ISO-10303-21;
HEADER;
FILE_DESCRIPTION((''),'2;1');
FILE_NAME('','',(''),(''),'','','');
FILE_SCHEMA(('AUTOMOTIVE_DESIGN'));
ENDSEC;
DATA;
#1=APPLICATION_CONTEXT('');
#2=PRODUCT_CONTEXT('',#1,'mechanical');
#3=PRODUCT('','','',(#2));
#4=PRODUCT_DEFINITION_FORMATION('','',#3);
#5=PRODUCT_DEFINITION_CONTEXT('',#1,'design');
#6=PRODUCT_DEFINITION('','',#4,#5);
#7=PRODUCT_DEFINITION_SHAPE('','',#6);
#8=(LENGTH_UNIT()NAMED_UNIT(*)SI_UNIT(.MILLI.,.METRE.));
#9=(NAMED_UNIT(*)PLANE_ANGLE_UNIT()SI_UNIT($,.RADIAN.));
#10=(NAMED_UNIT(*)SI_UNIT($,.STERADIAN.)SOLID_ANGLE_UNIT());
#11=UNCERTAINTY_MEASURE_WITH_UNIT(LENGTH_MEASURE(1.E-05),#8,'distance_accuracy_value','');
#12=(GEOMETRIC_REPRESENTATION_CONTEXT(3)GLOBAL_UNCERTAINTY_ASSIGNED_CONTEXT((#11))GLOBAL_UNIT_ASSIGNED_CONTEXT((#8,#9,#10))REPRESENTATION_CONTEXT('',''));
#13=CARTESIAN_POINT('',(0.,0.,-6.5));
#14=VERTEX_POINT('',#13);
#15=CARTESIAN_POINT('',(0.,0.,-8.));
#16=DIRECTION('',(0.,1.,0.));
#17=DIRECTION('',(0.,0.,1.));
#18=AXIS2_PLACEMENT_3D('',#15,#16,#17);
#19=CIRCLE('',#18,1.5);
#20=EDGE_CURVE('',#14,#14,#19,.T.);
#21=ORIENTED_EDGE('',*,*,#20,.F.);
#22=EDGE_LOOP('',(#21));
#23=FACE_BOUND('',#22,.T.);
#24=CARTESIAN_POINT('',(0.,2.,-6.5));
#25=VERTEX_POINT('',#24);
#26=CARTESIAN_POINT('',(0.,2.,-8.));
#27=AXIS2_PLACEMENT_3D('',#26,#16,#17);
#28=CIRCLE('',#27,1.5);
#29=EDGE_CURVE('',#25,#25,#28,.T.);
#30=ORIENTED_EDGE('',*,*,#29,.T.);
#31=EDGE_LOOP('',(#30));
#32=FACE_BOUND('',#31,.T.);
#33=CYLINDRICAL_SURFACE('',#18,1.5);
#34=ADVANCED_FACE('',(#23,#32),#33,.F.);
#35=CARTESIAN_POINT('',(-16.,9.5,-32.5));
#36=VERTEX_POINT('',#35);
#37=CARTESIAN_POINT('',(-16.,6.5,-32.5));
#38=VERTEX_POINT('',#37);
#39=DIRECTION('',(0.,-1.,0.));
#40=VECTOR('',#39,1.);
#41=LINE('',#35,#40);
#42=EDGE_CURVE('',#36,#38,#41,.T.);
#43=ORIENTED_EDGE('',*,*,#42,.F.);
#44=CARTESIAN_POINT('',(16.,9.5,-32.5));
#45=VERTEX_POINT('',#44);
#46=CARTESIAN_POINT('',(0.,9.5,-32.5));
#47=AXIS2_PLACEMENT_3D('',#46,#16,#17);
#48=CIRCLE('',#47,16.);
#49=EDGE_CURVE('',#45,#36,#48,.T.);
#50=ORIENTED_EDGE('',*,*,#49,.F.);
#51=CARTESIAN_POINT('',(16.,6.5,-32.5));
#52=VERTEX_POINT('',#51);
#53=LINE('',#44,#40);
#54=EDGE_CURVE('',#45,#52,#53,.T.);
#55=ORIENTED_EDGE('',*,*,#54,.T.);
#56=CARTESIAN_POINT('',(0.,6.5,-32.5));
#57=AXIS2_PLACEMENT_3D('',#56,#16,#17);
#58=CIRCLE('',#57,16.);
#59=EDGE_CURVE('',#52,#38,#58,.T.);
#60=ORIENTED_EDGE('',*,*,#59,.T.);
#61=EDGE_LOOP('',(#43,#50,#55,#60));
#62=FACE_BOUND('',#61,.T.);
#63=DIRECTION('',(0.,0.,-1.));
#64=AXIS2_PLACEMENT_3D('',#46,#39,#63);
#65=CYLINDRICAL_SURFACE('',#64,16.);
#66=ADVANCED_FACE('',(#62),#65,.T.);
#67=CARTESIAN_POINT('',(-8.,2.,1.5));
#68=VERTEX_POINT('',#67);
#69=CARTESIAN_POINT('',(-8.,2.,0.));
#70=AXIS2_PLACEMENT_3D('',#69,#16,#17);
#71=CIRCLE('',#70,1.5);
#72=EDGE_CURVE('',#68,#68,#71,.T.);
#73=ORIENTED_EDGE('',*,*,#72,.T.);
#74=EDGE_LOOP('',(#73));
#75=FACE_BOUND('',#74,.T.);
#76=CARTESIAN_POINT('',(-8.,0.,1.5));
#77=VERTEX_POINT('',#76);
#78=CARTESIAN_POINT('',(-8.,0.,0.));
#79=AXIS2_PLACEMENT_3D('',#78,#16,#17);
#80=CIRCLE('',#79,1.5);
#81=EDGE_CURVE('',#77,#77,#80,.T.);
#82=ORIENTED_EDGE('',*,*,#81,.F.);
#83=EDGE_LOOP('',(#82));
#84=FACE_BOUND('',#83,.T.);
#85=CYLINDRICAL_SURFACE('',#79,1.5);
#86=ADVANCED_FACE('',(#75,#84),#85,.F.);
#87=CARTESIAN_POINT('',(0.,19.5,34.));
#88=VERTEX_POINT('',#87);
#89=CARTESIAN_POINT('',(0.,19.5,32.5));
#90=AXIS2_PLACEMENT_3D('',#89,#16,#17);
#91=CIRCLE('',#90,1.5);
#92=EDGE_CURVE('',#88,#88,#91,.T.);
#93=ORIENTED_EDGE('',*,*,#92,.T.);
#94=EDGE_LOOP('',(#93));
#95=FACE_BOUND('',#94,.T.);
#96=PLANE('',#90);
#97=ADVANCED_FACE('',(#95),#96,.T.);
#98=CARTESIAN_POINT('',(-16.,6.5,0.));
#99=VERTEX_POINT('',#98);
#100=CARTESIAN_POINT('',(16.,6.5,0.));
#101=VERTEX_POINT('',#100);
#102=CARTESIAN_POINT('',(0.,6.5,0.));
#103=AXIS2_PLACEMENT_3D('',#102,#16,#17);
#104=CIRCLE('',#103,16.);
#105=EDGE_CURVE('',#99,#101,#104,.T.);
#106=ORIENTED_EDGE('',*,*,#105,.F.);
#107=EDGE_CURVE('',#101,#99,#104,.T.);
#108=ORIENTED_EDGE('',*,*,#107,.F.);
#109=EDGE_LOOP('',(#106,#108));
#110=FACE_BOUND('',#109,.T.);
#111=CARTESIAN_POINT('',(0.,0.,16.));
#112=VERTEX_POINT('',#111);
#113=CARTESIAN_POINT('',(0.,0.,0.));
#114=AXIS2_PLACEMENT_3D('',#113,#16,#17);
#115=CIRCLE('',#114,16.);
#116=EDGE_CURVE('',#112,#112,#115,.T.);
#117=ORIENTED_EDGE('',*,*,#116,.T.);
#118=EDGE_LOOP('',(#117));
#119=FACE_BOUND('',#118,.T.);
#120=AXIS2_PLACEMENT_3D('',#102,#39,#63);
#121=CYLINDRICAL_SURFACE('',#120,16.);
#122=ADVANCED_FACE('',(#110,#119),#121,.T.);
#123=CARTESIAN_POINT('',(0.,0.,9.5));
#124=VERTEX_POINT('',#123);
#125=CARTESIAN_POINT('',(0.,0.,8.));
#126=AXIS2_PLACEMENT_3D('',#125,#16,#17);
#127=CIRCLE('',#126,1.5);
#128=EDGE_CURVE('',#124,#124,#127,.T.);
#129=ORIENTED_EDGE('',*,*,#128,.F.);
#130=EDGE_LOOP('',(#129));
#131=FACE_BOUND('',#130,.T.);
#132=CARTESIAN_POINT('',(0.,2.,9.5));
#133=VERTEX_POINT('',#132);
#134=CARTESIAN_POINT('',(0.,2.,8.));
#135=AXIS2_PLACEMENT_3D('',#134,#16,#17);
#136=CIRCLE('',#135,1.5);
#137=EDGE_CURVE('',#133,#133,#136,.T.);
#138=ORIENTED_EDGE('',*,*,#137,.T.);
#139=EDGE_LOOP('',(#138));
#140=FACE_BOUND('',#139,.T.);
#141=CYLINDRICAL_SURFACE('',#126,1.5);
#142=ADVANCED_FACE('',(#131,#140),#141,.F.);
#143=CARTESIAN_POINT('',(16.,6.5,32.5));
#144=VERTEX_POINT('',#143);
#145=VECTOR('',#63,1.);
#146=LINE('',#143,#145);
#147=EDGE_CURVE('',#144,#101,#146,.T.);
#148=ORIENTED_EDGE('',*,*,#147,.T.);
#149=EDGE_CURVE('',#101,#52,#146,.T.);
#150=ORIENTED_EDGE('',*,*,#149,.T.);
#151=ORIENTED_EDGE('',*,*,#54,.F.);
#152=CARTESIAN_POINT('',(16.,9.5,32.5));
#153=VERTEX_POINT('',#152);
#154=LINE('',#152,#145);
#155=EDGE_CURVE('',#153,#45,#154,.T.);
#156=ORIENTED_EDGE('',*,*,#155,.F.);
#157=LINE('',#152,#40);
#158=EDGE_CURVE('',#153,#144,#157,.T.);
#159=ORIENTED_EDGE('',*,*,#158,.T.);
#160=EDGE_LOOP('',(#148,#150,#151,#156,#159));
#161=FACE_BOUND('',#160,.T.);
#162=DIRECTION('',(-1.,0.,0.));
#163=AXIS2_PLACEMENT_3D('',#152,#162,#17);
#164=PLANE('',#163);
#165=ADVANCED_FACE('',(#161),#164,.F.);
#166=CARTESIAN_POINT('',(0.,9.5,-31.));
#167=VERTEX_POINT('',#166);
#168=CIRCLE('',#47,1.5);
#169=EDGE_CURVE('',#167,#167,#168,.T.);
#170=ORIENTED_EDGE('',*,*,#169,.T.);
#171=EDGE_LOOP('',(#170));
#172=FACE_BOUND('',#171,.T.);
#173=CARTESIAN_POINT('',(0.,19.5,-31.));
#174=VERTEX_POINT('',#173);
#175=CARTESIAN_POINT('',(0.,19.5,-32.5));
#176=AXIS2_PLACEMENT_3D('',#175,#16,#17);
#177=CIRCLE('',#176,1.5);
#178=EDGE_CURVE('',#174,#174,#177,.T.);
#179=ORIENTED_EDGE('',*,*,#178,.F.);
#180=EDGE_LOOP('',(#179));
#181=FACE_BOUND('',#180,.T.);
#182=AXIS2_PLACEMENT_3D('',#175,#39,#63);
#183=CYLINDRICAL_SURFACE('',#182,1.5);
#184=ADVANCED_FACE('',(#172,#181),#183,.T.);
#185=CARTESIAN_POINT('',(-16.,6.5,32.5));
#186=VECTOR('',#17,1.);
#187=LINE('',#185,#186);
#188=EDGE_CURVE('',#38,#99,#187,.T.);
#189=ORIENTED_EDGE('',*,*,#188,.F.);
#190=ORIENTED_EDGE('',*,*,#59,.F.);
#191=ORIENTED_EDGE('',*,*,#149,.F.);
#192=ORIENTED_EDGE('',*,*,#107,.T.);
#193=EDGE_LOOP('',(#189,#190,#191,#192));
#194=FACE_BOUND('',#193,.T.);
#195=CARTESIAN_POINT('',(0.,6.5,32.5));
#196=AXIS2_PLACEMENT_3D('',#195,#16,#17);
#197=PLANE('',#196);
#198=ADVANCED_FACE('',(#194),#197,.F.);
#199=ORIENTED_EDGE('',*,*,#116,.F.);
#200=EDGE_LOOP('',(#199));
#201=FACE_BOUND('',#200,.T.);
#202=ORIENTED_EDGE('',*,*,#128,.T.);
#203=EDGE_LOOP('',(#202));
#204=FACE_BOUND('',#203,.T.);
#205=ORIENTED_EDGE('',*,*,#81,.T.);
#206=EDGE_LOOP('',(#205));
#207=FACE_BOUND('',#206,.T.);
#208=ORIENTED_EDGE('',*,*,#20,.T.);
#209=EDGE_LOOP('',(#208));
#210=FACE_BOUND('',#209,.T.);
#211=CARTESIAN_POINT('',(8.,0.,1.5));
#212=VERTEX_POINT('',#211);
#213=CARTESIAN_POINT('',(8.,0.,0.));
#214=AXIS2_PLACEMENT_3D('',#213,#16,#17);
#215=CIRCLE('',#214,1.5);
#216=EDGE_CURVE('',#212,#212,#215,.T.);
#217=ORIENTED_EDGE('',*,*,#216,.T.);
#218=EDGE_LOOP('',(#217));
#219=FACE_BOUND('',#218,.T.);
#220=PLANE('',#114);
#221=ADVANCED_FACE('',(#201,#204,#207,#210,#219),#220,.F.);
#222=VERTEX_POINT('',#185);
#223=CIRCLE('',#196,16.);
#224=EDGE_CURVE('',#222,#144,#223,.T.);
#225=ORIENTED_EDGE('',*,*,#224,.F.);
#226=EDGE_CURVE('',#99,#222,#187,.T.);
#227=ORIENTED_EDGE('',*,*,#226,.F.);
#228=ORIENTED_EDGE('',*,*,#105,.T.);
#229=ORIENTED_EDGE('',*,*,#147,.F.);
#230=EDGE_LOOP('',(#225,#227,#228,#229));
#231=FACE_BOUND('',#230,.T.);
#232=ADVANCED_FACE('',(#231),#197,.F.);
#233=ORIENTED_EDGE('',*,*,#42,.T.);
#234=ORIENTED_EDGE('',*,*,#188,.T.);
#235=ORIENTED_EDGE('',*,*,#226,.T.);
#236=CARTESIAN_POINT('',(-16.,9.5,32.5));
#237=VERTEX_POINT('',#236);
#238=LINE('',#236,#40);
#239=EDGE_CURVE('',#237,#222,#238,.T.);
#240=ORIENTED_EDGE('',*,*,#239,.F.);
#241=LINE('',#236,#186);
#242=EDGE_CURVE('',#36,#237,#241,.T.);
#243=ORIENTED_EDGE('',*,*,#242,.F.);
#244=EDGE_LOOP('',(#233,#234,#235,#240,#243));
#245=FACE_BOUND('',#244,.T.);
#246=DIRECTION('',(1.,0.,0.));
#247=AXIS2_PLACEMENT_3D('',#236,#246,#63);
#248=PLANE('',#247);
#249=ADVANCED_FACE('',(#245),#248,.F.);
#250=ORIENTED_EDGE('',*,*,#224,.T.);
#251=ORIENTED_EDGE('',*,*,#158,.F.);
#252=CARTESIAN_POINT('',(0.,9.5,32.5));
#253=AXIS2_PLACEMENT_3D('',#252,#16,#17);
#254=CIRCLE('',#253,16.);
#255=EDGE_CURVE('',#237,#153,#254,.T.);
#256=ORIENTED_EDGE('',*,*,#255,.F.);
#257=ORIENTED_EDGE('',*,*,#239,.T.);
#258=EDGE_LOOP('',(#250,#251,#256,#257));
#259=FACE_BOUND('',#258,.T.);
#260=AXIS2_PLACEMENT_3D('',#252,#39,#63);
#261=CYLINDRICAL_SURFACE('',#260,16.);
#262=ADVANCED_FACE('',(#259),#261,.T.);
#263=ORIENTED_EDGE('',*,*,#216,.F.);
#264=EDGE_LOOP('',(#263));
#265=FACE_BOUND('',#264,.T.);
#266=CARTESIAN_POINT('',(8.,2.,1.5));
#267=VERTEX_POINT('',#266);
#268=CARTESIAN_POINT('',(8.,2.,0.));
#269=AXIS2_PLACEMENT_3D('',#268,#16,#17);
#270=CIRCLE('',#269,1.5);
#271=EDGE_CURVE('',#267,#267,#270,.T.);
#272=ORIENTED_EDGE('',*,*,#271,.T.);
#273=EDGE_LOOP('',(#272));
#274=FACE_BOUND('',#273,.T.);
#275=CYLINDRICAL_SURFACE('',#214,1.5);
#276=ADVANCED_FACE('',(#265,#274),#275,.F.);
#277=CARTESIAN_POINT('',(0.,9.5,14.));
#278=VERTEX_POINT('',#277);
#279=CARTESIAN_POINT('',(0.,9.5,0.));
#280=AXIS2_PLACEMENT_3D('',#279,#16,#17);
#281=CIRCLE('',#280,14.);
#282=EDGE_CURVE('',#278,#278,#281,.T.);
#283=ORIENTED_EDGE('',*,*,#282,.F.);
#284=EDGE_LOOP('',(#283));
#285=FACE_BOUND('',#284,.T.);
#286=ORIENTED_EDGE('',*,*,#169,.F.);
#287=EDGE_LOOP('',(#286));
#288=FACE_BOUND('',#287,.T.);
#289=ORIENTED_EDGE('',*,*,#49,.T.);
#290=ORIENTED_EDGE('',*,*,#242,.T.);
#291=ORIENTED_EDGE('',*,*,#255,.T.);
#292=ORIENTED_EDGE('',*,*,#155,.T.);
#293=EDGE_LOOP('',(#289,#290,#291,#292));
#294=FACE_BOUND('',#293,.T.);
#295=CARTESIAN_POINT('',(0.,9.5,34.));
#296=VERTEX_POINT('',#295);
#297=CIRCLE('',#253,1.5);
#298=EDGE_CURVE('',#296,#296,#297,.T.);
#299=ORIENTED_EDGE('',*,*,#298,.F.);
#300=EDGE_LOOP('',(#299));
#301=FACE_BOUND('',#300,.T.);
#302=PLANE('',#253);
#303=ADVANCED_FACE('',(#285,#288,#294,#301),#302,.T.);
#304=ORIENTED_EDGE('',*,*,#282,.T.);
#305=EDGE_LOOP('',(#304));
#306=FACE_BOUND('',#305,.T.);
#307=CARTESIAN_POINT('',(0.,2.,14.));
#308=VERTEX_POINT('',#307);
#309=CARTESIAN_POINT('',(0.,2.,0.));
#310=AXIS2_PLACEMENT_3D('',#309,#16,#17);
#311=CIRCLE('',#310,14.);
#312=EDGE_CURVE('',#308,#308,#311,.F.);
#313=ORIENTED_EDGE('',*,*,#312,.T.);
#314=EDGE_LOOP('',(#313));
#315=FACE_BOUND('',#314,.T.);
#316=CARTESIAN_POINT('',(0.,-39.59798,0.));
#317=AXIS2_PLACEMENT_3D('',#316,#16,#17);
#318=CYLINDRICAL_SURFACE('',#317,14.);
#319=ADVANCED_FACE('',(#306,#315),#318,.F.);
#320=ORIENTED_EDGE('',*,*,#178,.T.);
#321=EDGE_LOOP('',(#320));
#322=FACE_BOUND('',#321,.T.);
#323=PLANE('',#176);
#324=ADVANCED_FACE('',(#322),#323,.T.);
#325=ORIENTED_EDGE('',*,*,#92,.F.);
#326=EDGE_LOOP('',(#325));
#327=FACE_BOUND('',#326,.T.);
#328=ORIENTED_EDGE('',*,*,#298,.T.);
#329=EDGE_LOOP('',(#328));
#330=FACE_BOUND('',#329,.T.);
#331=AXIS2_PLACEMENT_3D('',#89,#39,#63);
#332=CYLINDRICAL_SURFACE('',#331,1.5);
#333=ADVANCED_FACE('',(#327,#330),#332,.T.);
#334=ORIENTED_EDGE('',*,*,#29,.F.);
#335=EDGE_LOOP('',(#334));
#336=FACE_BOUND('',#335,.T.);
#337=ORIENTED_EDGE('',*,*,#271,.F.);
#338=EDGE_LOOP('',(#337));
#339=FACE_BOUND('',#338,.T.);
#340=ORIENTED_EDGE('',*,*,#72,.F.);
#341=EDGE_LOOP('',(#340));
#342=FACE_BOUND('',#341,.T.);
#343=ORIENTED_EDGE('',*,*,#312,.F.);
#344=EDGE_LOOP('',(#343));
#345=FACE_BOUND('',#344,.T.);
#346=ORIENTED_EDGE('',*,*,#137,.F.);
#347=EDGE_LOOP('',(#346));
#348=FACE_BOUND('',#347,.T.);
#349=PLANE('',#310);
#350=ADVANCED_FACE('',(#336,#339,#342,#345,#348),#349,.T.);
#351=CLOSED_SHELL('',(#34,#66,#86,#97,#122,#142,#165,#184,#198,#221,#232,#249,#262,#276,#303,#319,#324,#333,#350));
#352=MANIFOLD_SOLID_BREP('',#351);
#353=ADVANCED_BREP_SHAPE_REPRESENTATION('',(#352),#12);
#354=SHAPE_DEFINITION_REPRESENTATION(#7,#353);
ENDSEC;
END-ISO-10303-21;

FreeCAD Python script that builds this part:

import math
import FreeCAD as App
import Part
import Sketcher

V = App.Vector

doc = App.newDocument("Part")
body = doc.addObject("PartDesign::Body", "Body")

# Sketch on XZ plane
sketch1 = doc.addObject("Sketcher::SketchObject", "Sketch")
body.addObject(sketch1)
sketch1.AttachmentSupport = (doc.XZ_Plane, [""])
sketch1.MapMode = "FlatFace"
sketch1.addGeometry(Part.Circle(V(0, 0, 0), V(0, 0, 1), 16), False)
sketch1.addConstraint(Sketcher.Constraint("Coincident", 0, 3, -1, 1))
sketch1.addConstraint(Sketcher.Constraint("Diameter", 0, 32.0))
pad1 = doc.addObject("PartDesign::Pad", "Pad")
body.addObject(pad1)
pad1.Profile = sketch1
pad1.Length = 6.5
pad1.Reversed = True

# Sketch on XZ plane
sketch2 = doc.addObject("Sketcher::SketchObject", "Sketch001")
body.addObject(sketch2)
sketch2.AttachmentSupport = (doc.XZ_Plane, [""])
sketch2.MapMode = "FlatFace"
sketch2.AttachmentOffset = App.Placement(V(0, 0, -6.5), App.Rotation())
sketch2.addGeometry(Part.LineSegment(V(-16, -32.5, 0), V(-16, 32.5, 0)), False)
sketch2.addGeometry(Part.ArcOfCircle(Part.Circle(V(0, 32.5, 0), V(0, 0, 1), 16), math.radians(0), math.radians(180)), False)
sketch2.addGeometry(Part.LineSegment(V(16, 32.5, 0), V(16, -32.5, 0)), False)
sketch2.addGeometry(Part.ArcOfCircle(Part.Circle(V(0, -32.5, 0), V(0, 0, 1), 16), math.radians(180), math.radians(360)), False)
sketch2.addConstraint(Sketcher.Constraint("Tangent", 0, 2, 1, 2))
sketch2.addConstraint(Sketcher.Constraint("Tangent", 1, 1, 2, 1))
sketch2.addConstraint(Sketcher.Constraint("Tangent", 2, 2, 3, 2))
sketch2.addConstraint(Sketcher.Constraint("Tangent", 3, 1, 0, 1))
sketch2.addConstraint(Sketcher.Constraint("Vertical", 0))
sketch2.addConstraint(Sketcher.Constraint("Vertical", 2))
sketch2.addConstraint(Sketcher.Constraint("Symmetric", 1, 3, 3, 3, -1, 1))
sketch2.addConstraint(Sketcher.Constraint("Radius", 1, 16.0))
sketch2.addConstraint(Sketcher.Constraint("DistanceY", 0, 1, 0, 2, 65.0))
pad2 = doc.addObject("PartDesign::Pad", "Pad001")
body.addObject(pad2)
pad2.Profile = sketch2
pad2.Length = 3
pad2.Reversed = True

# Sketch on XZ plane
sketch3 = doc.addObject("Sketcher::SketchObject", "Sketch002")
body.addObject(sketch3)
sketch3.AttachmentSupport = (doc.XZ_Plane, [""])
sketch3.MapMode = "FlatFace"
sketch3.AttachmentOffset = App.Placement(V(0, 0, -9.5), App.Rotation())
sketch3.addGeometry(Part.Circle(V(0, -32.5, 0), V(0, 0, 1), 1.5), False)
sketch3.addGeometry(Part.Circle(V(0, 32.5, 0), V(0, 0, 1), 1.5), False)
sketch3.addConstraint(Sketcher.Constraint("Equal", 0, 1))
sketch3.addConstraint(Sketcher.Constraint("Symmetric", 0, 3, 1, 3, -1, 1))
sketch3.addConstraint(Sketcher.Constraint("PointOnObject", 0, 3, -2))
sketch3.addConstraint(Sketcher.Constraint("Diameter", 0, 3.0))
sketch3.addConstraint(Sketcher.Constraint("DistanceY", 0, 3, 1, 3, 65.0))
pad3 = doc.addObject("PartDesign::Pad", "Pad002")
body.addObject(pad3)
pad3.Profile = sketch3
pad3.Length = 10
pad3.Reversed = True

# Sketch on XZ plane
sketch4 = doc.addObject("Sketcher::SketchObject", "Sketch003")
body.addObject(sketch4)
sketch4.AttachmentSupport = (doc.XZ_Plane, [""])
sketch4.MapMode = "FlatFace"
sketch4.AttachmentOffset = App.Placement(V(0, 0, -9.5), App.Rotation())
sketch4.addGeometry(Part.Circle(V(0, 0, 0), V(0, 0, 1), 14), False)
sketch4.addConstraint(Sketcher.Constraint("Coincident", 0, 3, -1, 1))
sketch4.addConstraint(Sketcher.Constraint("Diameter", 0, 28.0))
pocket1 = doc.addObject("PartDesign::Pocket", "Pocket")
body.addObject(pocket1)
pocket1.Profile = sketch4
pocket1.Length = 7.5
pocket1.Reversed = True

# Sketch on XZ plane
sketch5 = doc.addObject("Sketcher::SketchObject", "Sketch004")
body.addObject(sketch5)
sketch5.AttachmentSupport = (doc.XZ_Plane, [""])
sketch5.MapMode = "FlatFace"
sketch5.AttachmentOffset = App.Placement(V(0, 0, -2), App.Rotation())
sketch5.addGeometry(Part.Circle(V(8, 0, 0), V(0, 0, 1), 1.5), False)
sketch5.addGeometry(Part.Circle(V(0, 8, 0), V(0, 0, 1), 1.5), False)
sketch5.addGeometry(Part.Circle(V(-8, 0, 0), V(0, 0, 1), 1.5), False)
sketch5.addGeometry(Part.Circle(V(0, -8, 0), V(0, 0, 1), 1.5), False)
sketch5.addConstraint(Sketcher.Constraint("Equal", 0, 1))
sketch5.addConstraint(Sketcher.Constraint("Equal", 1, 2))
sketch5.addConstraint(Sketcher.Constraint("Equal", 2, 3))
sketch5.addConstraint(Sketcher.Constraint("Symmetric", 0, 3, 2, 3, -1, 1))
sketch5.addConstraint(Sketcher.Constraint("Symmetric", 1, 3, 3, 3, -1, 1))
sketch5.addConstraint(Sketcher.Constraint("PointOnObject", 0, 3, -1))
sketch5.addConstraint(Sketcher.Constraint("PointOnObject", 1, 3, -2))
sketch5.addConstraint(Sketcher.Constraint("Diameter", 0, 3.0))
sketch5.addConstraint(Sketcher.Constraint("DistanceX", -1, 1, 0, 3, 8.0))
sketch5.addConstraint(Sketcher.Constraint("DistanceY", -1, 1, 1, 3, 8.0))
pocket2 = doc.addObject("PartDesign::Pocket", "Pocket001")
body.addObject(pocket2)
pocket2.Profile = sketch5
pocket2.Type = "ThroughAll"
pocket2.Reversed = True

doc.recompute()
